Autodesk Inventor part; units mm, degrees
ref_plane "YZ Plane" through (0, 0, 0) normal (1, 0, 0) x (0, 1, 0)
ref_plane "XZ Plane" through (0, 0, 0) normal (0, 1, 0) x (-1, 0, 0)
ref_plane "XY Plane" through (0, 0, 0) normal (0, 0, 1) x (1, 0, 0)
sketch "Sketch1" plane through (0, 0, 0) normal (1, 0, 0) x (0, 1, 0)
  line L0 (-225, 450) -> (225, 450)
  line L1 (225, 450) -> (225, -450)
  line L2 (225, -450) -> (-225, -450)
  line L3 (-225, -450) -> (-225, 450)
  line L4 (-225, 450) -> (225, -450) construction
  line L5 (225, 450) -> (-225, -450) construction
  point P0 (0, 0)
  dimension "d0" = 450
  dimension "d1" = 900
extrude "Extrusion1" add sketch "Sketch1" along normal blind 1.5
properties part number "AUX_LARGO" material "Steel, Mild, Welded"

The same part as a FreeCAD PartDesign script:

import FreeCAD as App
import Part
import Sketcher
from FreeCAD import Vector
Q = App.Units.Quantity

doc = App.newDocument("Part")
body = doc.addObject("PartDesign::Body", "Body")

# Sketch on YZ plane
sketch1 = body.newObject("Sketcher::SketchObject", "Sketch")
sketch1.AttachmentSupport = (doc.getObject("YZ_Plane"), [""])
sketch1.MapMode = "FlatFace"
sketch1.addGeometry(Part.LineSegment(Vector(225, 450, 0), Vector(-225, 450, 0)), False)
sketch1.addGeometry(Part.LineSegment(Vector(-225, 450, 0), Vector(-225, -450, 0)), False)
sketch1.addGeometry(Part.LineSegment(Vector(-225, -450, 0), Vector(225, -450, 0)), False)
sketch1.addGeometry(Part.LineSegment(Vector(225, -450, 0), Vector(225, 450, 0)), False)
sketch1.addConstraint(Sketcher.Constraint("Coincident", 0, 2, 1, 1))
sketch1.addConstraint(Sketcher.Constraint("Coincident", 1, 2, 2, 1))
sketch1.addConstraint(Sketcher.Constraint("Coincident", 2, 2, 3, 1))
sketch1.addConstraint(Sketcher.Constraint("Coincident", 3, 2, 0, 1))
sketch1.addConstraint(Sketcher.Constraint("Horizontal", 0))
sketch1.addConstraint(Sketcher.Constraint("Vertical", 1))
sketch1.addConstraint(Sketcher.Constraint("Horizontal", 2))
sketch1.addConstraint(Sketcher.Constraint("Vertical", 3))
sketch1.addConstraint(Sketcher.Constraint("Symmetric", 0, 2, 2, 2, -1, 1))
sketch1.addConstraint(Sketcher.Constraint("DistanceX", 0, 2, 0, 1, Q("450 mm")))
sketch1.addConstraint(Sketcher.Constraint("DistanceY", 1, 2, 1, 1, Q("900 mm")))
pad1 = body.newObject("PartDesign::Pad", "Pad")
pad1.Profile = sketch1
pad1.Length = 1.5

doc.recompute()
